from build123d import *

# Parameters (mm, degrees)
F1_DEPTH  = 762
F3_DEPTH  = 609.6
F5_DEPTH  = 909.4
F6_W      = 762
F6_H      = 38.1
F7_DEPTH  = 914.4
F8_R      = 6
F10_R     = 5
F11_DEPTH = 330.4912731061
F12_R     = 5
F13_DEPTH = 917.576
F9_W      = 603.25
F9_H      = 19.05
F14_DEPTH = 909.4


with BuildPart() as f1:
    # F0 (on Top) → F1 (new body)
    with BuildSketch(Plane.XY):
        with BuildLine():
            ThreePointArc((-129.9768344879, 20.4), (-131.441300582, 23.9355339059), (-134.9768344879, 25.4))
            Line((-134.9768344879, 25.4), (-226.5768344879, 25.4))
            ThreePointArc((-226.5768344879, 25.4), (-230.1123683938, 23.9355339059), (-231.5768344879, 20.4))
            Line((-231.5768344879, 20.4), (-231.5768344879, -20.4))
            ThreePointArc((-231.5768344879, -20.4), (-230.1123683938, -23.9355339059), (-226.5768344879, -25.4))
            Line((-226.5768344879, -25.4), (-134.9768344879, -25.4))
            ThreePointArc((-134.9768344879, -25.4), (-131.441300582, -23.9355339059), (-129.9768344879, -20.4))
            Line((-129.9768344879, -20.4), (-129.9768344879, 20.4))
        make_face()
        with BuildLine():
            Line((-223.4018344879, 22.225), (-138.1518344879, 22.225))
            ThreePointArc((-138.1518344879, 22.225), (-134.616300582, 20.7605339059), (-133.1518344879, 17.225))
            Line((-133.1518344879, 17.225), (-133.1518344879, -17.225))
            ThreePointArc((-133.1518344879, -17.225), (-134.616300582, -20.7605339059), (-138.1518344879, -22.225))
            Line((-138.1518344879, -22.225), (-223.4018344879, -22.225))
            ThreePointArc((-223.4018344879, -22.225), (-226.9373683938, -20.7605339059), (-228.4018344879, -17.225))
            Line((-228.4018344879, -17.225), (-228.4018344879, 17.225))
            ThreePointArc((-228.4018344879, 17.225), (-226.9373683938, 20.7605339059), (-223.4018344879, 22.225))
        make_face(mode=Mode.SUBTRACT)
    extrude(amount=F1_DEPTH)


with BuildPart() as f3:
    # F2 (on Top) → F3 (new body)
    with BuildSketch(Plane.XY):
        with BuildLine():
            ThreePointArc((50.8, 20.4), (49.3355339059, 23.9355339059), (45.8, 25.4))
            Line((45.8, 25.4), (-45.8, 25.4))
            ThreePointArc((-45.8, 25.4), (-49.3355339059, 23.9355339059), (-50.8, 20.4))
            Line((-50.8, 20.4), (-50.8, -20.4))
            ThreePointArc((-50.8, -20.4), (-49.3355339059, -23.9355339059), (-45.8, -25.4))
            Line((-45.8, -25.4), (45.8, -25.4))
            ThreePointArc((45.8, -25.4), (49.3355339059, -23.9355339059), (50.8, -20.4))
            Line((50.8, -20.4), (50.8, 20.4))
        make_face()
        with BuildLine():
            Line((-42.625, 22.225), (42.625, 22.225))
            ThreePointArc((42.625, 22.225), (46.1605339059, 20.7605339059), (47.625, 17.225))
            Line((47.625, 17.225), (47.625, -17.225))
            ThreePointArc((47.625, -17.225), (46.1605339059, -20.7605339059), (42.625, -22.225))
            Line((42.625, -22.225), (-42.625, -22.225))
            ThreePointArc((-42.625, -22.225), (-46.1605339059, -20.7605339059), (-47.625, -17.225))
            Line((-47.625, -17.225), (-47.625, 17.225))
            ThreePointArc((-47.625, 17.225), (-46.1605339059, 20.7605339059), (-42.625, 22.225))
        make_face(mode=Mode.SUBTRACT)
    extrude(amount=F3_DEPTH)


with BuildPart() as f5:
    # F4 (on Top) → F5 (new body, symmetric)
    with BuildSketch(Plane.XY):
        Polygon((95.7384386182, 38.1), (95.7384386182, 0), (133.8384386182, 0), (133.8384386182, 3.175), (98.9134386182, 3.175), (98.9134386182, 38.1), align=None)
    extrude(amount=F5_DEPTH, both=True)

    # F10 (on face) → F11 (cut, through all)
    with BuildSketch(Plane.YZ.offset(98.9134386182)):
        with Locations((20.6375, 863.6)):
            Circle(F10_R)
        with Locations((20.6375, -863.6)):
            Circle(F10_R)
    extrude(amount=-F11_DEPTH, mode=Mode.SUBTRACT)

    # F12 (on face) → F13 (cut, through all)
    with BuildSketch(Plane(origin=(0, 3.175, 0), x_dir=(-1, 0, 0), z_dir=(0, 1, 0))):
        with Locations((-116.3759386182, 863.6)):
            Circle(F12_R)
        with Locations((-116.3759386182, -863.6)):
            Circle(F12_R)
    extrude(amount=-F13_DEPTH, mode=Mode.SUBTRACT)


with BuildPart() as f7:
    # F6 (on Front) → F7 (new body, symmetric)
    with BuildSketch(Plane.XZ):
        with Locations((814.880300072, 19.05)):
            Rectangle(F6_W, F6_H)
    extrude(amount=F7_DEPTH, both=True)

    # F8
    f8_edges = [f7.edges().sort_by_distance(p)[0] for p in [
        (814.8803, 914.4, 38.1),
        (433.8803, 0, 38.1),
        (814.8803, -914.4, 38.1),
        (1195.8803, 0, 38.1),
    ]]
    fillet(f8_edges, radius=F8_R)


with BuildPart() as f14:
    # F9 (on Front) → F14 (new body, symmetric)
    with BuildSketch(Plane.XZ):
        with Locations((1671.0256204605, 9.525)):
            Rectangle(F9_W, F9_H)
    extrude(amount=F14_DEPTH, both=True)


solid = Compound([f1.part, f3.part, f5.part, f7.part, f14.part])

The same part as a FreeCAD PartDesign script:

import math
import FreeCAD as App
import Part
import Sketcher
Q = App.Units.Quantity


def edges_at(feature, points):
    """Names of the edges that pass closest to the given points."""
    edges = feature.Shape.Edges
    near = lambda p: min(range(len(edges)), key=lambda i: edges[i].distToShape(Part.Vertex(*p))[0])
    return sorted({f"Edge{near(p) + 1}" for p in points})

doc = App.newDocument("Part")
params = doc.addObject("Spreadsheet::Sheet", "Params")
for row, (alias, value) in enumerate([
    ("pad1_length", "30 in"),
    ("pad2_length", "24 in"),
    ("sketch3_width", "1.5 in"),
    ("sketch3_width2", "1.375 in"),
    ("pad3_length", "1818.8 mm"),
    ("sketch6_width", "30 in"),
    ("sketch6_height", "1.5 in"),
    ("pad4_length", "72 in"),
    ("fillet_radius", "6 mm"),
    ("sketch7_width", "23.75 in"),
    ("sketch7_height", "0.75 in"),
    ("pad5_length", "1818.8 mm"),
], start=1):
    params.set(f"A{row}", alias)
    params.set(f"B{row}", "=" + value)
    params.setAlias(f"B{row}", alias)

body = doc.addObject("PartDesign::Body", "Body")

# Sketch on XY plane
sketch1 = body.newObject("Sketcher::SketchObject", "Sketch")
sketch1.AttachmentSupport = (doc.getObject("XY_Plane"), [""])
sketch1.MapMode = "FlatFace"
sketch1.addGeometry(Part.ArcOfCircle(Part.Circle(App.Vector(-135, 20, 0), App.Vector(0, 0, 1), 5), math.radians(0), math.radians(90)), False)
sketch1.addGeometry(Part.LineSegment(App.Vector(-135, 25, 0), App.Vector(-227, 25, 0)), False)
sketch1.addGeometry(Part.ArcOfCircle(Part.Circle(App.Vector(-227, 20, 0), App.Vector(0, 0, 1), 5), math.radians(90), math.radians(180)), False)
sketch1.addGeometry(Part.LineSegment(App.Vector(-232, 20, 0), App.Vector(-232, -20, 0)), False)
sketch1.addGeometry(Part.ArcOfCircle(Part.Circle(App.Vector(-227, -20, 0), App.Vector(0, 0, 1), 5), math.radians(180), math.radians(270)), False)
sketch1.addGeometry(Part.LineSegment(App.Vector(-227, -25, 0), App.Vector(-135, -25, 0)), False)
sketch1.addGeometry(Part.ArcOfCircle(Part.Circle(App.Vector(-135, -20, 0), App.Vector(0, 0, 1), 5), math.radians(-90), math.radians(0)), False)
sketch1.addGeometry(Part.LineSegment(App.Vector(-130, -20, 0), App.Vector(-130, 20, 0)), False)
sketch1.addGeometry(Part.ArcOfCircle(Part.Circle(App.Vector(-223, 17, 0), App.Vector(0, 0, 1), 5), math.radians(90), math.radians(180)), False)
sketch1.addGeometry(Part.LineSegment(App.Vector(-223, 22, 0), App.Vector(-138, 22, 0)), False)
sketch1.addGeometry(Part.ArcOfCircle(Part.Circle(App.Vector(-138, 17, 0), App.Vector(0, 0, 1), 5), math.radians(0), math.radians(90)), False)
sketch1.addGeometry(Part.LineSegment(App.Vector(-133, 17, 0), App.Vector(-133, -17, 0)), False)
sketch1.addGeometry(Part.ArcOfCircle(Part.Circle(App.Vector(-138, -17, 0), App.Vector(0, 0, 1), 5), math.radians(-90), math.radians(0)), False)
sketch1.addGeometry(Part.LineSegment(App.Vector(-138, -22, 0), App.Vector(-223, -22, 0)), False)
sketch1.addGeometry(Part.ArcOfCircle(Part.Circle(App.Vector(-223, -17, 0), App.Vector(0, 0, 1), 5), math.radians(180), math.radians(270)), False)
sketch1.addGeometry(Part.LineSegment(App.Vector(-228, -17, 0), App.Vector(-228, 17, 0)), False)
sketch1.addConstraint(Sketcher.Constraint("Tangent", 0, 2, 1, 1))
sketch1.addConstraint(Sketcher.Constraint("Tangent", 1, 2, 2, 1))
sketch1.addConstraint(Sketcher.Constraint("Tangent", 2, 2, 3, 1))
sketch1.addConstraint(Sketcher.Constraint("Tangent", 3, 2, 4, 1))
sketch1.addConstraint(Sketcher.Constraint("Tangent", 4, 2, 5, 1))
sketch1.addConstraint(Sketcher.Constraint("Tangent", 5, 2, 6, 1))
sketch1.addConstraint(Sketcher.Constraint("Tangent", 6, 2, 7, 1))
sketch1.addConstraint(Sketcher.Constraint("Tangent", 7, 2, 0, 1))
sketch1.addConstraint(Sketcher.Constraint("Tangent", 8, 1, 9, 1))
sketch1.addConstraint(Sketcher.Constraint("Tangent", 9, 2, 10, 2))
sketch1.addConstraint(Sketcher.Constraint("Tangent", 10, 1, 11, 1))
sketch1.addConstraint(Sketcher.Constraint("Tangent", 11, 2, 12, 2))
sketch1.addConstraint(Sketcher.Constraint("Tangent", 12, 1, 13, 1))
sketch1.addConstraint(Sketcher.Constraint("Tangent", 13, 2, 14, 2))
sketch1.addConstraint(Sketcher.Constraint("Tangent", 14, 1, 15, 1))
sketch1.addConstraint(Sketcher.Constraint("Tangent", 15, 2, 8, 2))
sketch1.addConstraint(Sketcher.Constraint("Horizontal", 1))
sketch1.addConstraint(Sketcher.Constraint("Vertical", 3))
sketch1.addConstraint(Sketcher.Constraint("Horizontal", 5))
sketch1.addConstraint(Sketcher.Constraint("Vertical", 7))
sketch1.addConstraint(Sketcher.Constraint("Horizontal", 9))
sketch1.addConstraint(Sketcher.Constraint("Vertical", 11))
sketch1.addConstraint(Sketcher.Constraint("Horizontal", 13))
sketch1.addConstraint(Sketcher.Constraint("Vertical", 15))
sketch1.addConstraint(Sketcher.Constraint("Equal", 0, 2))
sketch1.addConstraint(Sketcher.Constraint("Equal", 2, 4))
sketch1.addConstraint(Sketcher.Constraint("Equal", 4, 6))
sketch1.addConstraint(Sketcher.Constraint("Equal", 6, 8))
sketch1.addConstraint(Sketcher.Constraint("Equal", 8, 10))
sketch1.addConstraint(Sketcher.Constraint("Equal", 10, 12))
sketch1.addConstraint(Sketcher.Constraint("Equal", 12, 14))
sketch1.addConstraint(Sketcher.Constraint("DistanceY", -1, 1, 0, 2, Q("1 in")))
sketch1.addConstraint(Sketcher.Constraint("DistanceY", 4, 2, -1, 1, Q("1 in")))
sketch1.addConstraint(Sketcher.Constraint("Radius", 0, Q("5 mm")))
sketch1.addConstraint(Sketcher.Constraint("DistanceY", -1, 1, 8, 1, Q("0.875 in")))
sketch1.addConstraint(Sketcher.Constraint("DistanceY", 12, 1, -1, 1, Q("0.875 in")))
sketch1.addConstraint(Sketcher.Constraint("DistanceX", 2, 3, 8, 3, Q("0.125 in")))
sketch1.addConstraint(Sketcher.Constraint("DistanceX", 10, 3, 0, 3, Q("0.125 in")))
sketch1.addConstraint(Sketcher.Constraint("DistanceX", 1, 2, 1, 1, Q("91.6 mm")))
sketch1.addConstraint(Sketcher.Constraint("DistanceX", 0, 3, -1, 1, Q("134.976834 mm")))
pad1 = body.newObject("PartDesign::Pad", "Pad")
pad1.Profile = sketch1
pad1.setExpression("Length", "Params.pad1_length")
body2 = doc.addObject("PartDesign::Body", "Body001")

# Sketch on XY plane
sketch2 = body2.newObject("Sketcher::SketchObject", "Sketch001")
sketch2.AttachmentSupport = (doc.getObject("XY_Plane001"), [""])
sketch2.MapMode = "FlatFace"
sketch2.addGeometry(Part.ArcOfCircle(Part.Circle(App.Vector(46, 20, 0), App.Vector(0, 0, 1), 5), math.radians(0), math.radians(90)), False)
sketch2.addGeometry(Part.LineSegment(App.Vector(46, 25, 0), App.Vector(-46, 25, 0)), False)
sketch2.addGeometry(Part.ArcOfCircle(Part.Circle(App.Vector(-46, 20, 0), App.Vector(0, 0, 1), 5), math.radians(90), math.radians(180)), False)
sketch2.addGeometry(Part.LineSegment(App.Vector(-51, 20, 0), App.Vector(-51, -20, 0)), False)
sketch2.addGeometry(Part.ArcOfCircle(Part.Circle(App.Vector(-46, -20, 0), App.Vector(0, 0, 1), 5), math.radians(180), math.radians(270)), False)
sketch2.addGeometry(Part.LineSegment(App.Vector(-46, -25, 0), App.Vector(46, -25, 0)), False)
sketch2.addGeometry(Part.ArcOfCircle(Part.Circle(App.Vector(46, -20, 0), App.Vector(0, 0, 1), 5), math.radians(-90), math.radians(0)), False)
sketch2.addGeometry(Part.LineSegment(App.Vector(51, -20, 0), App.Vector(51, 20, 0)), False)
sketch2.addGeometry(Part.ArcOfCircle(Part.Circle(App.Vector(-43, 17, 0), App.Vector(0, 0, 1), 5), math.radians(90), math.radians(180)), False)
sketch2.addGeometry(Part.LineSegment(App.Vector(-43, 22, 0), App.Vector(43, 22, 0)), False)
sketch2.addGeometry(Part.ArcOfCircle(Part.Circle(App.Vector(43, 17, 0), App.Vector(0, 0, 1), 5), math.radians(0), math.radians(90)), False)
sketch2.addGeometry(Part.LineSegment(App.Vector(48, 17, 0), App.Vector(48, -17, 0)), False)
sketch2.addGeometry(Part.ArcOfCircle(Part.Circle(App.Vector(43, -17, 0), App.Vector(0, 0, 1), 5), math.radians(-90), math.radians(0)), False)
sketch2.addGeometry(Part.LineSegment(App.Vector(43, -22, 0), App.Vector(-43, -22, 0)), False)
sketch2.addGeometry(Part.ArcOfCircle(Part.Circle(App.Vector(-43, -17, 0), App.Vector(0, 0, 1), 5), math.radians(180), math.radians(270)), False)
sketch2.addGeometry(Part.LineSegment(App.Vector(-48, -17, 0), App.Vector(-48, 17, 0)), False)
sketch2.addConstraint(Sketcher.Constraint("Tangent", 0, 2, 1, 1))
sketch2.addConstraint(Sketcher.Constraint("Tangent", 1, 2, 2, 1))
sketch2.addConstraint(Sketcher.Constraint("Tangent", 2, 2, 3, 1))
sketch2.addConstraint(Sketcher.Constraint("Tangent", 3, 2, 4, 1))
sketch2.addConstraint(Sketcher.Constraint("Tangent", 4, 2, 5, 1))
sketch2.addConstraint(Sketcher.Constraint("Tangent", 5, 2, 6, 1))
sketch2.addConstraint(Sketcher.Constraint("Tangent", 6, 2, 7, 1))
sketch2.addConstraint(Sketcher.Constraint("Tangent", 7, 2, 0, 1))
sketch2.addConstraint(Sketcher.Constraint("Tangent", 8, 1, 9, 1))
sketch2.addConstraint(Sketcher.Constraint("Tangent", 9, 2, 10, 2))
sketch2.addConstraint(Sketcher.Constraint("Tangent", 10, 1, 11, 1))
sketch2.addConstraint(Sketcher.Constraint("Tangent", 11, 2, 12, 2))
sketch2.addConstraint(Sketcher.Constraint("Tangent", 12, 1, 13, 1))
sketch2.addConstraint(Sketcher.Constraint("Tangent", 13, 2, 14, 2))
sketch2.addConstraint(Sketcher.Constraint("Tangent", 14, 1, 15, 1))
sketch2.addConstraint(Sketcher.Constraint("Tangent", 15, 2, 8, 2))
sketch2.addConstraint(Sketcher.Constraint("Horizontal", 1))
sketch2.addConstraint(Sketcher.Constraint("Vertical", 3))
sketch2.addConstraint(Sketcher.Constraint("Horizontal", 5))
sketch2.addConstraint(Sketcher.Constraint("Vertical", 7))
sketch2.addConstraint(Sketcher.Constraint("Horizontal", 9))
sketch2.addConstraint(Sketcher.Constraint("Vertical", 11))
sketch2.addConstraint(Sketcher.Constraint("Horizontal", 13))
sketch2.addConstraint(Sketcher.Constraint("Vertical", 15))
sketch2.addConstraint(Sketcher.Constraint("Equal", 0, 2))
sketch2.addConstraint(Sketcher.Constraint("Equal", 2, 4))
sketch2.addConstraint(Sketcher.Constraint("Equal", 4, 6))
sketch2.addConstraint(Sketcher.Constraint("Equal", 6, 8))
sketch2.addConstraint(Sketcher.Constraint("Equal", 8, 10))
sketch2.addConstraint(Sketcher.Constraint("Equal", 10, 12))
sketch2.addConstraint(Sketcher.Constraint("Equal", 12, 14))
sketch2.addConstraint(Sketcher.Constraint("Symmetric", 0, 3, 4, 3, -1, 1))
sketch2.addConstraint(Sketcher.Constraint("Symmetric", 8, 3, 12, 3, -1, 1))
sketch2.addConstraint(Sketcher.Constraint("DistanceY", -1, 1, 0, 2, Q("1 in")))
sketch2.addConstraint(Sketcher.Constraint("DistanceX", 2, 2, -1, 1, Q("2 in")))
sketch2.addConstraint(Sketcher.Constraint("Radius", 0, Q("5 mm")))
sketch2.addConstraint(Sketcher.Constraint("DistanceY", -1, 1, 8, 1, Q("0.875 in")))
sketch2.addConstraint(Sketcher.Constraint("DistanceX", -1, 1, 10, 1, Q("1.875 in")))
pad2 = body2.newObject("PartDesign::Pad", "Pad001")
pad2.Profile = sketch2
pad2.setExpression("Length", "Params.pad2_length")
body3 = doc.addObject("PartDesign::Body", "Body002")

# Sketch on XY plane
sketch3 = body3.newObject("Sketcher::SketchObject", "Sketch002")
sketch3.AttachmentSupport = (doc.getObject("XY_Plane002"), [""])
sketch3.MapMode = "FlatFace"
sketch3.addGeometry(Part.LineSegment(App.Vector(95.7, 38.1, 0), App.Vector(95.7, 0, 0)), False)
sketch3.addGeometry(Part.LineSegment(App.Vector(95.7, 0, 0), App.Vector(133.8, 0, 0)), False)
sketch3.addGeometry(Part.LineSegment(App.Vector(133.8, 0, 0), App.Vector(133.8, 3.2, 0)), False)
sketch3.addGeometry(Part.LineSegment(App.Vector(133.8, 3.2, 0), App.Vector(98.9, 3.2, 0)), False)
sketch3.addGeometry(Part.LineSegment(App.Vector(98.9, 3.2, 0), App.Vector(98.9, 38.1, 0)), False)
sketch3.addGeometry(Part.LineSegment(App.Vector(98.9, 38.1, 0), App.Vector(95.7, 38.1, 0)), False)
sketch3.addConstraint(Sketcher.Constraint("Coincident", 0, 2, 1, 1))
sketch3.addConstraint(Sketcher.Constraint("Coincident", 1, 2, 2, 1))
sketch3.addConstraint(Sketcher.Constraint("Coincident", 2, 2, 3, 1))
sketch3.addConstraint(Sketcher.Constraint("Coincident", 3, 2, 4, 1))
sketch3.addConstraint(Sketcher.Constraint("Coincident", 4, 2, 5, 1))
sketch3.addConstraint(Sketcher.Constraint("Coincident", 5, 2, 0, 1))
sketch3.addConstraint(Sketcher.Constraint("Vertical", 0))
sketch3.addConstraint(Sketcher.Constraint("Horizontal", 1))
sketch3.addConstraint(Sketcher.Constraint("Vertical", 2))
sketch3.addConstraint(Sketcher.Constraint("Horizontal", 3))
sketch3.addConstraint(Sketcher.Constraint("Vertical", 4))
sketch3.addConstraint(Sketcher.Constraint("Horizontal", 5))
sketch3.addConstraint(Sketcher.Constraint("PointOnObject", 0, 2, -1))
sketch3.addConstraint(Sketcher.Constraint("Equal", 1, 0))
sketch3.addConstraint(Sketcher.Constraint("Equal", 5, 2))
sketch3.addConstraint(Sketcher.Constraint("DistanceX", 1, 1, 1, 2, Q("1.5 in")))
sketch3.addConstraint(Sketcher.Constraint("DistanceX", 3, 2, 3, 1, Q("1.375 in")))
sketch3.addConstraint(Sketcher.Constraint("DistanceX", -1, 1, 0, 2, Q("95.738439 mm")))
sketch3.setExpression("Constraints[15]", "Params.sketch3_width")
sketch3.setExpression("Constraints[16]", "Params.sketch3_width2")
pad3 = body3.newObject("PartDesign::Pad", "Pad002")
pad3.Profile = sketch3
pad3.setExpression("Length", "Params.pad3_length")
pad3.Midplane = True

# Sketch on YZ plane
sketch4 = body3.newObject("Sketcher::SketchObject", "Sketch003")
sketch4.AttachmentSupport = (doc.getObject("YZ_Plane002"), [""])
sketch4.MapMode = "FlatFace"
sketch4.AttachmentOffset = App.Placement(App.Vector(0, 0, 98.913439), App.Rotation())
sketch4.addGeometry(Part.Circle(App.Vector(21, 864, 0), App.Vector(0, 0, 1), 5), False)
sketch4.addGeometry(Part.Circle(App.Vector(21, -864, 0), App.Vector(0, 0, 1), 5), False)
sketch4.addConstraint(Sketcher.Constraint("Equal", 0, 1))
sketch4.addConstraint(Sketcher.Constraint("Symmetric", 0, 3, 1, 3, -1))
sketch4.addConstraint(Sketcher.Constraint("DistanceY", -1, 1, 0, 3, Q("34 in")))
sketch4.addConstraint(Sketcher.Constraint("Diameter", 0, Q("10 mm")))
sketch4.addConstraint(Sketcher.Constraint("DistanceX", -1, 1, 0, 3, Q("0.8125 in")))
pocket1 = body3.newObject("PartDesign::Pocket", "Pocket")
pocket1.Profile = sketch4
pocket1.Type = "ThroughAll"

# Sketch on XZ plane
sketch5 = body3.newObject("Sketcher::SketchObject", "Sketch004")
sketch5.AttachmentSupport = (doc.getObject("XZ_Plane002"), [""])
sketch5.MapMode = "FlatFace"
sketch5.AttachmentOffset = App.Placement(App.Vector(0, 0, -0.125 * 25.4), App.Rotation())
sketch5.addGeometry(Part.Circle(App.Vector(116, 864, 0), App.Vector(0, 0, 1), 5), False)
sketch5.addGeometry(Part.Circle(App.Vector(116, -864, 0), App.Vector(0, 0, 1), 5), False)
sketch5.addConstraint(Sketcher.Constraint("Equal", 0, 1))
sketch5.addConstraint(Sketcher.Constraint("Symmetric", 0, 3, 1, 3, -1))
sketch5.addConstraint(Sketcher.Constraint("DistanceY", -1, 1, 0, 3, Q("34 in")))
sketch5.addConstraint(Sketcher.Constraint("Diameter", 0, Q("10 mm")))
sketch5.addConstraint(Sketcher.Constraint("DistanceX", -1, 1, 0, 3, Q("116.375939 mm")))
pocket2 = body3.newObject("PartDesign::Pocket", "Pocket001")
pocket2.Profile = sketch5
pocket2.Type = "ThroughAll"
pocket2.Reversed = True
body4 = doc.addObject("PartDesign::Body", "Body003")

# Sketch on XZ plane
sketch6 = body4.newObject("Sketcher::SketchObject", "Sketch005")
sketch6.AttachmentSupport = (doc.getObject("XZ_Plane003"), [""])
sketch6.MapMode = "FlatFace"
sketch6.addGeometry(Part.LineSegment(App.Vector(434, 38, 0), App.Vector(434, 0, 0)), False)
sketch6.addGeometry(Part.LineSegment(App.Vector(434, 0, 0), App.Vector(1196, 0, 0)), False)
sketch6.addGeometry(Part.LineSegment(App.Vector(1196, 0, 0), App.Vector(1196, 38, 0)), False)
sketch6.addGeometry(Part.LineSegment(App.Vector(1196, 38, 0), App.Vector(434, 38, 0)), False)
sketch6.addConstraint(Sketcher.Constraint("Coincident", 0, 2, 1, 1))
sketch6.addConstraint(Sketcher.Constraint("Coincident", 1, 2, 2, 1))
sketch6.addConstraint(Sketcher.Constraint("Coincident", 2, 2, 3, 1))
sketch6.addConstraint(Sketcher.Constraint("Coincident", 3, 2, 0, 1))
sketch6.addConstraint(Sketcher.Constraint("Vertical", 0))
sketch6.addConstraint(Sketcher.Constraint("Horizontal", 1))
sketch6.addConstraint(Sketcher.Constraint("Vertical", 2))
sketch6.addConstraint(Sketcher.Constraint("Horizontal", 3))
sketch6.addConstraint(Sketcher.Constraint("PointOnObject", 0, 2, -1))
sketch6.addConstraint(Sketcher.Constraint("DistanceX", 1, 1, 1, 2, Q("30 in")))
sketch6.addConstraint(Sketcher.Constraint("DistanceY", 0, 2, 0, 1, Q("1.5 in")))
sketch6.addConstraint(Sketcher.Constraint("DistanceX", -1, 1, 0, 2, Q("433.8803 mm")))
sketch6.setExpression("Constraints[9]", "Params.sketch6_width")
sketch6.setExpression("Constraints[10]", "Params.sketch6_height")
pad4 = body4.newObject("PartDesign::Pad", "Pad003")
pad4.Profile = sketch6
pad4.setExpression("Length", "Params.pad4_length")
pad4.Midplane = True
doc.recompute()

fillet = body4.newObject("PartDesign::Fillet", "Fillet")
fillet.Base = (pad4, edges_at(pad4, [
    (814.88, 914.4, 38.1),
    (433.88, 0, 38.1),
    (814.88, -914.4, 38.1),
    (1195.88, 0, 38.1),
]))
fillet.setExpression("Radius", "Params.fillet_radius")
body5 = doc.addObject("PartDesign::Body", "Body004")

# Sketch on XZ plane
sketch7 = body5.newObject("Sketcher::SketchObject", "Sketch006")
sketch7.AttachmentSupport = (doc.getObject("XZ_Plane004"), [""])
sketch7.MapMode = "FlatFace"
sketch7.addGeometry(Part.LineSegment(App.Vector(1369, 19, 0), App.Vector(1369, 0, 0)), False)
sketch7.addGeometry(Part.LineSegment(App.Vector(1369, 0, 0), App.Vector(1973, 0, 0)), False)
sketch7.addGeometry(Part.LineSegment(App.Vector(1973, 0, 0), App.Vector(1973, 19, 0)), False)
sketch7.addGeometry(Part.LineSegment(App.Vector(1973, 19, 0), App.Vector(1369, 19, 0)), False)
sketch7.addConstraint(Sketcher.Constraint("Coincident", 0, 2, 1, 1))
sketch7.addConstraint(Sketcher.Constraint("Coincident", 1, 2, 2, 1))
sketch7.addConstraint(Sketcher.Constraint("Coincident", 2, 2, 3, 1))
sketch7.addConstraint(Sketcher.Constraint("Coincident", 3, 2, 0, 1))
sketch7.addConstraint(Sketcher.Constraint("Vertical", 0))
sketch7.addConstraint(Sketcher.Constraint("Horizontal", 1))
sketch7.addConstraint(Sketcher.Constraint("Vertical", 2))
sketch7.addConstraint(Sketcher.Constraint("Horizontal", 3))
sketch7.addConstraint(Sketcher.Constraint("PointOnObject", 0, 2, -1))
sketch7.addConstraint(Sketcher.Constraint("DistanceX", 1, 1, 1, 2, Q("23.75 in")))
sketch7.addConstraint(Sketcher.Constraint("DistanceY", 0, 2, 0, 1, Q("0.75 in")))
sketch7.addConstraint(Sketcher.Constraint("DistanceX", -1, 1, 0, 2, Q("1369.40062 mm")))
sketch7.setExpression("Constraints[9]", "Params.sketch7_width")
sketch7.setExpression("Constraints[10]", "Params.sketch7_height")
pad5 = body5.newObject("PartDesign::Pad", "Pad004")
pad5.Profile = sketch7
pad5.setExpression("Length", "Params.pad5_length")
pad5.Midplane = True

doc.recompute()
